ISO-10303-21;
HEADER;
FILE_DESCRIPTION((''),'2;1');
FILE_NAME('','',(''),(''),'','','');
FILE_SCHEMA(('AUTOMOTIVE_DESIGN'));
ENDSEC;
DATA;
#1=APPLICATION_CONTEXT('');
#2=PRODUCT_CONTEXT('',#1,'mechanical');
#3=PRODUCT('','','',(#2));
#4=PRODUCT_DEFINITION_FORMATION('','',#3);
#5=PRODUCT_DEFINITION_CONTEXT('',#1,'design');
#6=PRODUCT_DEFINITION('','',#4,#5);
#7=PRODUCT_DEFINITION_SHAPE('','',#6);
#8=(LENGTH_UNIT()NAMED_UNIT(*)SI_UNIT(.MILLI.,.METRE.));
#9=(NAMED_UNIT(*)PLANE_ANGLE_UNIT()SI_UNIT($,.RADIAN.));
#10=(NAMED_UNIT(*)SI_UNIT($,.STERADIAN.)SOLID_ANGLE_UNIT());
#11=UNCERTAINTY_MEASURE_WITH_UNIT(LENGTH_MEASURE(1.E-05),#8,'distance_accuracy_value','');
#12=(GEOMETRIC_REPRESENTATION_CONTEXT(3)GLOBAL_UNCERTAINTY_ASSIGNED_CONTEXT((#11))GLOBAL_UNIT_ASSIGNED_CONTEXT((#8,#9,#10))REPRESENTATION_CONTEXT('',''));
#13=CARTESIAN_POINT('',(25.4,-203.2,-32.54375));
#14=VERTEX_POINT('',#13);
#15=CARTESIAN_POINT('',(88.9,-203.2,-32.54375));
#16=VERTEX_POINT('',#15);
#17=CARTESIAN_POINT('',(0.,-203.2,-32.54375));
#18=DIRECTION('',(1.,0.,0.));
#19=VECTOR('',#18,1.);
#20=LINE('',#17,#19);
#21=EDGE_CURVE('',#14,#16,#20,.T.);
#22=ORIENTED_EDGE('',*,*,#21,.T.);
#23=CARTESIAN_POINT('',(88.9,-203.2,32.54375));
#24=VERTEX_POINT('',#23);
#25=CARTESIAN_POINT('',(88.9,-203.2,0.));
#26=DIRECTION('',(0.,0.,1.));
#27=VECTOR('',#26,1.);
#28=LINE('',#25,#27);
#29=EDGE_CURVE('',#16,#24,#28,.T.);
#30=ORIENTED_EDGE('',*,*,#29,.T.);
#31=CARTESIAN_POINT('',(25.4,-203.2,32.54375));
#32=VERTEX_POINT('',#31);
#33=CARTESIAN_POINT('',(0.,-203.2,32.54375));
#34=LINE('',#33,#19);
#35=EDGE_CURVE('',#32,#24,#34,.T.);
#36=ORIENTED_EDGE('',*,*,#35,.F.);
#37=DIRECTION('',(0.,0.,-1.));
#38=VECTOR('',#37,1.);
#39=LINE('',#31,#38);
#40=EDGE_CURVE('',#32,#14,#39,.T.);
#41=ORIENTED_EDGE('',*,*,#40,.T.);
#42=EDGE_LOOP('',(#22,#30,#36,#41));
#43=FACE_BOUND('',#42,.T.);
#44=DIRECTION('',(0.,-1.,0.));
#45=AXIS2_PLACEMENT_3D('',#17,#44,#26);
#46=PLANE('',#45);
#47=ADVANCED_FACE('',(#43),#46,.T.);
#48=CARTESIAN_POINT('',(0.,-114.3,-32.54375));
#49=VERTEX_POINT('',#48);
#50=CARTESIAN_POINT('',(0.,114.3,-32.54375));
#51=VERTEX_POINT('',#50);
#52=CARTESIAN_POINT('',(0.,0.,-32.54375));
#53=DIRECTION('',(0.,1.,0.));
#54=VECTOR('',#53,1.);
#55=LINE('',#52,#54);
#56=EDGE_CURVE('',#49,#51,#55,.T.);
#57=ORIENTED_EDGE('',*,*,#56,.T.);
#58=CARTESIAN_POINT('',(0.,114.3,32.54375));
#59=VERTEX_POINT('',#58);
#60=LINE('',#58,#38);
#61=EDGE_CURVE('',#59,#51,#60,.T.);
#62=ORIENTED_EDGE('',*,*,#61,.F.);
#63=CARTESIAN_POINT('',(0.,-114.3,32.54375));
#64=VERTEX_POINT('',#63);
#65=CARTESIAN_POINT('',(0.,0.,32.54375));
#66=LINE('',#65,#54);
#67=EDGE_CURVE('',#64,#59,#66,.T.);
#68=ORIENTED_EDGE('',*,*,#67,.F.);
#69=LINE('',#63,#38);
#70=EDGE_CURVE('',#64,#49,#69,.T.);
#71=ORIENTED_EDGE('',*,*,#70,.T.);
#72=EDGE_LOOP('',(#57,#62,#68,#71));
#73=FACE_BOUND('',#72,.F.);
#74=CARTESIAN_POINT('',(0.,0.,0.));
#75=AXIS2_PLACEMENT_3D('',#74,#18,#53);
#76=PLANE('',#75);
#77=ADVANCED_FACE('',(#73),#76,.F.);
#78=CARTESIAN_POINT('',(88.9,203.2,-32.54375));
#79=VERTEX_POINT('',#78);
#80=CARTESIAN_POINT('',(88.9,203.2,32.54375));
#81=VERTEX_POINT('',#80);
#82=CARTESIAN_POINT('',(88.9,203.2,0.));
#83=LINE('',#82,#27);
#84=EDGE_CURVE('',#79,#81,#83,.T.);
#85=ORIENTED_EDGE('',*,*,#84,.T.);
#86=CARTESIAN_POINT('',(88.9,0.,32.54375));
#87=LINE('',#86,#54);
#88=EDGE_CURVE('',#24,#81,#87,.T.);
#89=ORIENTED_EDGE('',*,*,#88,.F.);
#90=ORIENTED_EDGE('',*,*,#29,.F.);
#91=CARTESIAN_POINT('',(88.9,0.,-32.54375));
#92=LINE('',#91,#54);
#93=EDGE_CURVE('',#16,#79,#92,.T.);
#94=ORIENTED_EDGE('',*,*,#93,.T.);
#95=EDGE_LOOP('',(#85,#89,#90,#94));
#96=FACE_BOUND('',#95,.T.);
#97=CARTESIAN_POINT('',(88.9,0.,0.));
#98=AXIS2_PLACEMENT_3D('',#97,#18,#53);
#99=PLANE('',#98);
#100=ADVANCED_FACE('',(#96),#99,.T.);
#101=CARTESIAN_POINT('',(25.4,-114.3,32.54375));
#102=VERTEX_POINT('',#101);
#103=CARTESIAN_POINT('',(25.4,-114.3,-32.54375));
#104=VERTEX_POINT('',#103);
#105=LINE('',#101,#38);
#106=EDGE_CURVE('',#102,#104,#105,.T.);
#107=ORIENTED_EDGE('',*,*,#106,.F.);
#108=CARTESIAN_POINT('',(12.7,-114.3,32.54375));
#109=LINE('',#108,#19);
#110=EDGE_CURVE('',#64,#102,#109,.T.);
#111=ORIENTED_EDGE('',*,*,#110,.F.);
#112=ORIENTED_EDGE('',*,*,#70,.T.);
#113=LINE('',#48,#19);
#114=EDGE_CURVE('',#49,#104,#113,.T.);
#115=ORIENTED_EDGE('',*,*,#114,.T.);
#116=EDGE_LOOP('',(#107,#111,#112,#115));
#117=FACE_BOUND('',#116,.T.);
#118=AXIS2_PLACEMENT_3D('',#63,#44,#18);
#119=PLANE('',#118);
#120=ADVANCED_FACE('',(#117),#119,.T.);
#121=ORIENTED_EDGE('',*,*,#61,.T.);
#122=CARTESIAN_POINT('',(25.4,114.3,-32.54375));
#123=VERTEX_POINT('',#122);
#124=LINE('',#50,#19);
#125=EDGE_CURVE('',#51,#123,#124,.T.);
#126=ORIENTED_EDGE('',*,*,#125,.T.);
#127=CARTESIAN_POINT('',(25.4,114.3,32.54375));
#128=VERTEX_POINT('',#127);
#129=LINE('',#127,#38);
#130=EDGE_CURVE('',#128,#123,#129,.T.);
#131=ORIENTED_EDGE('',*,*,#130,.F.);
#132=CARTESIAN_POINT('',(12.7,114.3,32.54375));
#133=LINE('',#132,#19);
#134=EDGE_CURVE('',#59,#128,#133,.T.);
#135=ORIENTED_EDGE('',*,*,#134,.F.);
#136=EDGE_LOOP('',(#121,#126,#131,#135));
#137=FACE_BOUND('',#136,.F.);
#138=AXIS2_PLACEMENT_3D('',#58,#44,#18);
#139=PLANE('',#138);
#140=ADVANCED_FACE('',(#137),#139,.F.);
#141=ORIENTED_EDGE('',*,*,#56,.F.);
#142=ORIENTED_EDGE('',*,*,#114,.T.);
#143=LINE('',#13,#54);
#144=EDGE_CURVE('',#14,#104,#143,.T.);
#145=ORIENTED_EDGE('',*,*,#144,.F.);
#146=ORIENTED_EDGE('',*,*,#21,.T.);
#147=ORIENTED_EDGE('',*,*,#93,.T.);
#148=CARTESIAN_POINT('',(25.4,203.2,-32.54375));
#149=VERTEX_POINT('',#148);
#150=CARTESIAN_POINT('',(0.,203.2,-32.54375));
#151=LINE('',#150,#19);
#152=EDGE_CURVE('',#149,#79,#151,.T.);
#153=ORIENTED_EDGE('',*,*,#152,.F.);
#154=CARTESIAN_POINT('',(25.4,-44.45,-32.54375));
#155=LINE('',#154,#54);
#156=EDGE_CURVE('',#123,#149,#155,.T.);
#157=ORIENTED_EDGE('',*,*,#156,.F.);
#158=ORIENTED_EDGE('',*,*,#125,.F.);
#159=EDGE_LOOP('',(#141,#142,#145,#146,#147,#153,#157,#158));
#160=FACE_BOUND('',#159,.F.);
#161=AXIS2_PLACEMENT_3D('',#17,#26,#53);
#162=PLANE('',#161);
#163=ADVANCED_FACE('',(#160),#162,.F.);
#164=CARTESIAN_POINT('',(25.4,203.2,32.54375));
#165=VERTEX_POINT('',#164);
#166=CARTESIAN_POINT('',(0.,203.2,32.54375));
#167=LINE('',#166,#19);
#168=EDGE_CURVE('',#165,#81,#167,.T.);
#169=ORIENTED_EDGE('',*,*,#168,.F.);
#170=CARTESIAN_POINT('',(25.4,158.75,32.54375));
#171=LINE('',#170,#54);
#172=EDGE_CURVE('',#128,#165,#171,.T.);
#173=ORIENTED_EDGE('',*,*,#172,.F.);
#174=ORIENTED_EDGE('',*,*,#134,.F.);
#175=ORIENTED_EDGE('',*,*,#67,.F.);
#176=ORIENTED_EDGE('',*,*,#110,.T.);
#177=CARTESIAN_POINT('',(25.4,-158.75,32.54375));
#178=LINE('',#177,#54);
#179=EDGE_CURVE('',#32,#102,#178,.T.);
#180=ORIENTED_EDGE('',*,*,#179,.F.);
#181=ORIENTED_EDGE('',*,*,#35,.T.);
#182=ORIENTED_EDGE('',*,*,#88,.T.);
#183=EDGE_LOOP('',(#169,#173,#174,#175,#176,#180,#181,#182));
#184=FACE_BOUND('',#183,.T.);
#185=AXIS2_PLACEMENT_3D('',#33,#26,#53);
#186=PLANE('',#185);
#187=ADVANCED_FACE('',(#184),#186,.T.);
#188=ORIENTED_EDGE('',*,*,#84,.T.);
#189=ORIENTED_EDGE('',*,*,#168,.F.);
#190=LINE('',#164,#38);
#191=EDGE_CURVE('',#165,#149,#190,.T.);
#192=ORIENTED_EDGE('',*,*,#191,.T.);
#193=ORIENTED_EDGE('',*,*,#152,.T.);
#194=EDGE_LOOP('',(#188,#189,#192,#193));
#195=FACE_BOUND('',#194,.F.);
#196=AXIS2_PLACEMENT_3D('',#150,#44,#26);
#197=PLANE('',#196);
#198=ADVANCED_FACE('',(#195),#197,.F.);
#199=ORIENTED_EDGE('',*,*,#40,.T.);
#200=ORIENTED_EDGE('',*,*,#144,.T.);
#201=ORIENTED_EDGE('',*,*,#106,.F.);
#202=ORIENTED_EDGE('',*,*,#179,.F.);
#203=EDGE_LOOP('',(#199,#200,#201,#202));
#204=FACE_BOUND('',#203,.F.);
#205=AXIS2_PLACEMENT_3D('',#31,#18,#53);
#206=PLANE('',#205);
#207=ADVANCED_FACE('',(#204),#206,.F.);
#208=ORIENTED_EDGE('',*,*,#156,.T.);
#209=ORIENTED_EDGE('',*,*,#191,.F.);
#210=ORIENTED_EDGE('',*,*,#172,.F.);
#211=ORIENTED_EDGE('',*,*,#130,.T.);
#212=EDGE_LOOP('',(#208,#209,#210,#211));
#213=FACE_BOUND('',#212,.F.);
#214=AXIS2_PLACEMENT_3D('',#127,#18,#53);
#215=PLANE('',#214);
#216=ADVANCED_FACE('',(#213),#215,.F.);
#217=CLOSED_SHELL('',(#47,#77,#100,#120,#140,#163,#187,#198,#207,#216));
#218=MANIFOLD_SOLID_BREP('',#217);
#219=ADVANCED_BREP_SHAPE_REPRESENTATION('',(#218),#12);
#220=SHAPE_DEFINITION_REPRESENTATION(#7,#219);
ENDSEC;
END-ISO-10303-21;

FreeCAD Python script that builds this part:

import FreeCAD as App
import Part
import Sketcher
from FreeCAD import Vector
Q = App.Units.Quantity


def add_polygon(sketch, points):
    """Adds a closed chain of lines whose ends are joined by coincident constraints."""
    first, n = sketch.GeometryCount, len(points)
    for a, b in zip(points, points[1:] + points[:1]):
        sketch.addGeometry(Part.LineSegment(App.Vector(*a, 0), App.Vector(*b, 0)), False)
    for i in range(n):
        sketch.addConstraint(Sketcher.Constraint("Coincident", first + i, 2, first + (i + 1) % n, 1))

doc = App.newDocument("Part")
body = doc.addObject("PartDesign::Body", "Body")

sketch1 = body.newObject("Sketcher::SketchObject", "Sketch")
sketch1.AttachmentSupport = (doc.getObject("YZ_Plane"), [""])
sketch1.MapMode = "FlatFace"
add_polygon(sketch1, [(-203.2, 32.54375), (-203.2, -32.54375), (203.2, -32.54375), (203.2, 32.54375)])
sketch1.addConstraint(Sketcher.Constraint("Vertical", 0))
sketch1.addConstraint(Sketcher.Constraint("Horizontal", 1))
sketch1.addConstraint(Sketcher.Constraint("Vertical", 2))
sketch1.addConstraint(Sketcher.Constraint("Horizontal", 3))
sketch1.addConstraint(Sketcher.Constraint("Symmetric", 0, 2, 2, 2, -1, 1))
sketch1.addConstraint(Sketcher.Constraint("DistanceX", 1, 1, 1, 2, Q("16 in")))
sketch1.addConstraint(Sketcher.Constraint("DistanceY", 0, 2, 0, 1, Q("2.5625 in")))
pad1 = body.newObject("PartDesign::Pad", "Pad")
pad1.Profile = sketch1
pad1.Length = Q("3.5 in")

sketch2 = body.newObject("Sketcher::SketchObject", "Sketch001")
sketch2.AttachmentSupport = (doc.getObject("XY_Plane"), [""])
sketch2.MapMode = "FlatFace"
sketch2.AttachmentOffset = App.Placement(Vector(0, 0, 1.28125 * 25.4), App.Rotation())
add_polygon(sketch2, [(0, 203.2), (0, 114.3), (25.4, 114.3), (25.4, 203.2)])
add_polygon(sketch2, [(0, -114.3), (0, -203.2), (25.4, -203.2), (25.4, -114.3)])
sketch2.addConstraint(Sketcher.Constraint("Vertical", 0))
sketch2.addConstraint(Sketcher.Constraint("Horizontal", 1))
sketch2.addConstraint(Sketcher.Constraint("Vertical", 2))
sketch2.addConstraint(Sketcher.Constraint("Horizontal", 3))
sketch2.addConstraint(Sketcher.Constraint("Vertical", 4))
sketch2.addConstraint(Sketcher.Constraint("Horizontal", 5))
sketch2.addConstraint(Sketcher.Constraint("Vertical", 6))
sketch2.addConstraint(Sketcher.Constraint("Horizontal", 7))
sketch2.addConstraint(Sketcher.Constraint("Symmetric", 3, 2, 4, 2, -1, 1))
sketch2.addConstraint(Sketcher.Constraint("Symmetric", 1, 2, 6, 2, -1))
sketch2.addConstraint(Sketcher.Constraint("PointOnObject", 0, 2, -2))
sketch2.addConstraint(Sketcher.Constraint("DistanceX", 1, 1, 1, 2, Q("1 in")))
sketch2.addConstraint(Sketcher.Constraint("DistanceY", 0, 2, 0, 1, Q("3.5 in")))
sketch2.addConstraint(Sketcher.Constraint("DistanceY", -1, 1, 2, 2, Q("8 in")))
pocket1 = body.newObject("PartDesign::Pocket", "Pocket")
pocket1.Profile = sketch2
pocket1.Type = "ThroughAll"

doc.recompute()
